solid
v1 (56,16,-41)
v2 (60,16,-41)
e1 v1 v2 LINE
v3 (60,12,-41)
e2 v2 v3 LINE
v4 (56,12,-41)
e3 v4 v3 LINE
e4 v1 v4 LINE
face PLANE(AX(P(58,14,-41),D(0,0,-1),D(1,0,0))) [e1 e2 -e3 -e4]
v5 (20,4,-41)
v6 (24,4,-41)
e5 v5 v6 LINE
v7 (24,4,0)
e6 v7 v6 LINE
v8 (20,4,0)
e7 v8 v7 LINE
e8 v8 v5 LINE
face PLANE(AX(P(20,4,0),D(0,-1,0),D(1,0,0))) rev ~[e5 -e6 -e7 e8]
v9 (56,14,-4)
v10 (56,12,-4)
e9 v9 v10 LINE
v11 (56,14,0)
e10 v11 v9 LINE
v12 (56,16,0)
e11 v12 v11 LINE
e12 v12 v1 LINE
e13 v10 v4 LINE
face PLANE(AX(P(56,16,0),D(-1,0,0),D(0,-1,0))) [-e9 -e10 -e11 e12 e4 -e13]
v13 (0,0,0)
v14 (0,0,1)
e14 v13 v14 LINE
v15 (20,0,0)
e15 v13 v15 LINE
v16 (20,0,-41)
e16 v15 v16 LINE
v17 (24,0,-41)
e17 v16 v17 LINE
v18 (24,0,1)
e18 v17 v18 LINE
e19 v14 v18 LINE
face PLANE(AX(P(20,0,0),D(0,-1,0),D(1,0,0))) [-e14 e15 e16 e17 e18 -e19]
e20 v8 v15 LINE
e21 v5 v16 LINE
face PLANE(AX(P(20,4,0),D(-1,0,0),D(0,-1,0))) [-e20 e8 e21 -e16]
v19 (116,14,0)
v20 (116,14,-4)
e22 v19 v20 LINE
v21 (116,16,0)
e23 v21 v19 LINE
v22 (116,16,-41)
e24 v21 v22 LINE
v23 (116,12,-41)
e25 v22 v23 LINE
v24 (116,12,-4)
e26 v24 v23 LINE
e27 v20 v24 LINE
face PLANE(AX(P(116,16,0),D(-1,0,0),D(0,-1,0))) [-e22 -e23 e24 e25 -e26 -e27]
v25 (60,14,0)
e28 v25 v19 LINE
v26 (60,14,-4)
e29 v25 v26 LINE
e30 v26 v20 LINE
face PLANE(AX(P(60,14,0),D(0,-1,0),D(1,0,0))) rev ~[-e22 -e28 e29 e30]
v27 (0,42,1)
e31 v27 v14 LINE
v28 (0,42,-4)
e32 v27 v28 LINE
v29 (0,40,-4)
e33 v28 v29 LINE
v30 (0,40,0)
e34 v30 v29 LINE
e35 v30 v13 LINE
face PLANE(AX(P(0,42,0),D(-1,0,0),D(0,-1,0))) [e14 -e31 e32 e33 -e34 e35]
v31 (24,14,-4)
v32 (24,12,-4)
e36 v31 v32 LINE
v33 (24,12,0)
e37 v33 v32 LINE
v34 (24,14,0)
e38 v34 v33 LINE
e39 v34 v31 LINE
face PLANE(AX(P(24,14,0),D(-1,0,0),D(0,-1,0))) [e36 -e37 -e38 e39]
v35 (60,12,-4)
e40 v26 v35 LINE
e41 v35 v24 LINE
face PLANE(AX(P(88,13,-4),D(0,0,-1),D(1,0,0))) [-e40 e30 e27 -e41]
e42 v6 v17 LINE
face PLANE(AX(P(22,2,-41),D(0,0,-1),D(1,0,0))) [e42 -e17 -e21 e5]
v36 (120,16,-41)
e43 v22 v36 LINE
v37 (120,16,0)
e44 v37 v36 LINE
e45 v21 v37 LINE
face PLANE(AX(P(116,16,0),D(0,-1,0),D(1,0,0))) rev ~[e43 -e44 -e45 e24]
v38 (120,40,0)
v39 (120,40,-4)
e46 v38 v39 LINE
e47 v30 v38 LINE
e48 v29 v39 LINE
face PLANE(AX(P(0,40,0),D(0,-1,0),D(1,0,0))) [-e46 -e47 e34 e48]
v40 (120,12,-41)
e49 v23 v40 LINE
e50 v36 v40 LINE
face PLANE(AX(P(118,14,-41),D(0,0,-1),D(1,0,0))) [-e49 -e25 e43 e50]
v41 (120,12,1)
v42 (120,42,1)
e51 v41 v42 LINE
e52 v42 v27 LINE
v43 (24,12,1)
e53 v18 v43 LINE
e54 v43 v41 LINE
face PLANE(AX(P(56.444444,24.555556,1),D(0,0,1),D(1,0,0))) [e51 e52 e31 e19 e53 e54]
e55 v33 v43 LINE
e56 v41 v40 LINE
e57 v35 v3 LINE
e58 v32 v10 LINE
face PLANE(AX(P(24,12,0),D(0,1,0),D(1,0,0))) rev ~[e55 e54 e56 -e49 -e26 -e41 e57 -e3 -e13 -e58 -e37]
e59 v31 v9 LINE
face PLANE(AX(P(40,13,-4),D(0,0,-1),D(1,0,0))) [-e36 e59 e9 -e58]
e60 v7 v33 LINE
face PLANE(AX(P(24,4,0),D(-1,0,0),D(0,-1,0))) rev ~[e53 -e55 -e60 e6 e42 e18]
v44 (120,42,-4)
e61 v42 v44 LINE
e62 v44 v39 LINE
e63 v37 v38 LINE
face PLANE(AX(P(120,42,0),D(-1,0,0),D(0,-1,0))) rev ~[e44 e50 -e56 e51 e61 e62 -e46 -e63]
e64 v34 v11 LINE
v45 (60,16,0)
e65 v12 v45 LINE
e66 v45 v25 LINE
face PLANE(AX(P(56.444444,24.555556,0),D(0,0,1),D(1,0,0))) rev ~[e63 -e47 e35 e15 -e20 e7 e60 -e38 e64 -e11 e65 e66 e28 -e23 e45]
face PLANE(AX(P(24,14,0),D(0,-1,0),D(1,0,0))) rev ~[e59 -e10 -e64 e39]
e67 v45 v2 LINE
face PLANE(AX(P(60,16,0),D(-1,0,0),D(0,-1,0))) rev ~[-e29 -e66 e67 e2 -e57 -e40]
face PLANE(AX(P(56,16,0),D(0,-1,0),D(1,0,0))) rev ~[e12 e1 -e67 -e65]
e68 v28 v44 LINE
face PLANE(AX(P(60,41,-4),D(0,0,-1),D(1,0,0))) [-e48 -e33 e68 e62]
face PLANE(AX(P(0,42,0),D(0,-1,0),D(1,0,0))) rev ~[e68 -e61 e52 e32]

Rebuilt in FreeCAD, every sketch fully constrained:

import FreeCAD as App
import Part
import Sketcher
from FreeCAD import Vector
Q = App.Units.Quantity


def add_polygon(sketch, points):
    """Adds a closed chain of lines whose ends are joined by coincident constraints."""
    first, n = sketch.GeometryCount, len(points)
    for a, b in zip(points, points[1:] + points[:1]):
        sketch.addGeometry(Part.LineSegment(App.Vector(*a, 0), App.Vector(*b, 0)), False)
    for i in range(n):
        sketch.addConstraint(Sketcher.Constraint("Coincident", first + i, 2, first + (i + 1) % n, 1))

doc = App.newDocument("Part")
body = doc.addObject("PartDesign::Body", "Body")

sketch1 = body.newObject("Sketcher::SketchObject", "Sketch")
sketch1.AttachmentSupport = (doc.getObject("XY_Plane"), [""])
sketch1.MapMode = "FlatFace"
add_polygon(sketch1, [(0, 42), (0, 0), (24, 0), (24, 12), (120, 12), (120, 42)])
sketch1.addConstraint([
    Sketcher.Constraint("Vertical", 0),
    Sketcher.Constraint("Horizontal", 1),
    Sketcher.Constraint("Vertical", 2),
    Sketcher.Constraint("Horizontal", 3),
    Sketcher.Constraint("Vertical", 4),
    Sketcher.Constraint("Horizontal", 5),
    Sketcher.Constraint("Coincident", 0, 2, -1, 1),
    Sketcher.Constraint("DistanceX", 1, 1, 1, 2, Q("24 mm")),
    Sketcher.Constraint("DistanceX", 3, 1, 3, 2, Q("96 mm")),
    Sketcher.Constraint("DistanceY", 0, 2, 0, 1, Q("42 mm")),
    Sketcher.Constraint("DistanceY", 2, 1, 2, 2, Q("12 mm")),
])
pad1 = body.newObject("PartDesign::Pad", "Pad")
pad1.Profile = sketch1
pad1.Length = 1

sketch2 = body.newObject("Sketcher::SketchObject", "Sketch001")
sketch2.AttachmentSupport = (doc.getObject("XY_Plane"), [""])
sketch2.MapMode = "FlatFace"
add_polygon(sketch2, [(20, 0), (20, 4), (24, 4), (24, 0)])
add_polygon(sketch2, [(56, 12), (56, 16), (60, 16), (60, 12)])
add_polygon(sketch2, [(116, 12), (116, 16), (120, 16), (120, 12)])
sketch2.addConstraint([
    Sketcher.Constraint("Vertical", 0),
    Sketcher.Constraint("Horizontal", 1),
    Sketcher.Constraint("Vertical", 2),
    Sketcher.Constraint("Horizontal", 3),
    Sketcher.Constraint("Vertical", 4),
    Sketcher.Constraint("Horizontal", 5),
    Sketcher.Constraint("Vertical", 6),
    Sketcher.Constraint("Horizontal", 7),
    Sketcher.Constraint("Vertical", 8),
    Sketcher.Constraint("Horizontal", 9),
    Sketcher.Constraint("Vertical", 10),
    Sketcher.Constraint("Horizontal", 11),
    Sketcher.Constraint("PointOnObject", 2, 2, -1),
    Sketcher.Constraint("Horizontal", 5, 2, 8, 2),
    Sketcher.Constraint("Horizontal", 7, 2, 10, 2),
    Sketcher.Constraint("Equal", 3, 5),
    Sketcher.Constraint("Equal", 7, 9),
    Sketcher.Constraint("Equal", 11, 0),
    Sketcher.Constraint("Equal", 2, 4),
    Sketcher.Constraint("DistanceX", 1, 1, 1, 2, Q("4 mm")),
    Sketcher.Constraint("DistanceX", -1, 1, 0, 2, Q("20 mm")),
    Sketcher.Constraint("DistanceX", -1, 1, 4, 2, Q("56 mm")),
    Sketcher.Constraint("DistanceY", -1, 1, 4, 2, Q("16 mm")),
    Sketcher.Constraint("DistanceX", -1, 1, 8, 2, Q("116 mm")),
])
pad2 = body.newObject("PartDesign::Pad", "Pad001")
pad2.Profile = sketch2
pad2.Length = 41
pad2.Reversed = True

sketch3 = body.newObject("Sketcher::SketchObject", "Sketch002")
sketch3.AttachmentSupport = (doc.getObject("XY_Plane"), [""])
sketch3.MapMode = "FlatFace"
add_polygon(sketch3, [(0, 40), (0, 42), (120, 42), (120, 40)])
add_polygon(sketch3, [(24, 12), (24, 14), (56, 14), (56, 12)])
add_polygon(sketch3, [(60, 12), (60, 14), (116, 14), (116, 12)])
sketch3.addConstraint([
    Sketcher.Constraint("Vertical", 0),
    Sketcher.Constraint("Horizontal", 1),
    Sketcher.Constraint("Vertical", 2),
    Sketcher.Constraint("Horizontal", 3),
    Sketcher.Constraint("Vertical", 4),
    Sketcher.Constraint("Horizontal", 5),
    Sketcher.Constraint("Vertical", 6),
    Sketcher.Constraint("Horizontal", 7),
    Sketcher.Constraint("Vertical", 8),
    Sketcher.Constraint("Horizontal", 9),
    Sketcher.Constraint("Vertical", 10),
    Sketcher.Constraint("Horizontal", 11),
    Sketcher.Constraint("PointOnObject", 0, 2, -2),
    Sketcher.Constraint("Horizontal", 5, 2, 8, 2),
    Sketcher.Constraint("Horizontal", 7, 2, 10, 2),
    Sketcher.Constraint("Equal", 2, 4),
    Sketcher.Constraint("DistanceX", 1, 1, 1, 2, Q("120 mm")),
    Sketcher.Constraint("DistanceX", 5, 1, 5, 2, Q("32 mm")),
    Sketcher.Constraint("DistanceX", 9, 1, 9, 2, Q("56 mm")),
    Sketcher.Constraint("DistanceY", 0, 1, 0, 2, Q("2 mm")),
    Sketcher.Constraint("DistanceY", -1, 1, 0, 2, Q("42 mm")),
    Sketcher.Constraint("DistanceX", -1, 1, 4, 2, Q("24 mm")),
    Sketcher.Constraint("DistanceY", -1, 1, 4, 2, Q("14 mm")),
    Sketcher.Constraint("DistanceX", -1, 1, 8, 2, Q("60 mm")),
])
pad3 = body.newObject("PartDesign::Pad", "Pad002")
pad3.Profile = sketch3
pad3.Length = 4
pad3.Reversed = True

doc.recompute()
